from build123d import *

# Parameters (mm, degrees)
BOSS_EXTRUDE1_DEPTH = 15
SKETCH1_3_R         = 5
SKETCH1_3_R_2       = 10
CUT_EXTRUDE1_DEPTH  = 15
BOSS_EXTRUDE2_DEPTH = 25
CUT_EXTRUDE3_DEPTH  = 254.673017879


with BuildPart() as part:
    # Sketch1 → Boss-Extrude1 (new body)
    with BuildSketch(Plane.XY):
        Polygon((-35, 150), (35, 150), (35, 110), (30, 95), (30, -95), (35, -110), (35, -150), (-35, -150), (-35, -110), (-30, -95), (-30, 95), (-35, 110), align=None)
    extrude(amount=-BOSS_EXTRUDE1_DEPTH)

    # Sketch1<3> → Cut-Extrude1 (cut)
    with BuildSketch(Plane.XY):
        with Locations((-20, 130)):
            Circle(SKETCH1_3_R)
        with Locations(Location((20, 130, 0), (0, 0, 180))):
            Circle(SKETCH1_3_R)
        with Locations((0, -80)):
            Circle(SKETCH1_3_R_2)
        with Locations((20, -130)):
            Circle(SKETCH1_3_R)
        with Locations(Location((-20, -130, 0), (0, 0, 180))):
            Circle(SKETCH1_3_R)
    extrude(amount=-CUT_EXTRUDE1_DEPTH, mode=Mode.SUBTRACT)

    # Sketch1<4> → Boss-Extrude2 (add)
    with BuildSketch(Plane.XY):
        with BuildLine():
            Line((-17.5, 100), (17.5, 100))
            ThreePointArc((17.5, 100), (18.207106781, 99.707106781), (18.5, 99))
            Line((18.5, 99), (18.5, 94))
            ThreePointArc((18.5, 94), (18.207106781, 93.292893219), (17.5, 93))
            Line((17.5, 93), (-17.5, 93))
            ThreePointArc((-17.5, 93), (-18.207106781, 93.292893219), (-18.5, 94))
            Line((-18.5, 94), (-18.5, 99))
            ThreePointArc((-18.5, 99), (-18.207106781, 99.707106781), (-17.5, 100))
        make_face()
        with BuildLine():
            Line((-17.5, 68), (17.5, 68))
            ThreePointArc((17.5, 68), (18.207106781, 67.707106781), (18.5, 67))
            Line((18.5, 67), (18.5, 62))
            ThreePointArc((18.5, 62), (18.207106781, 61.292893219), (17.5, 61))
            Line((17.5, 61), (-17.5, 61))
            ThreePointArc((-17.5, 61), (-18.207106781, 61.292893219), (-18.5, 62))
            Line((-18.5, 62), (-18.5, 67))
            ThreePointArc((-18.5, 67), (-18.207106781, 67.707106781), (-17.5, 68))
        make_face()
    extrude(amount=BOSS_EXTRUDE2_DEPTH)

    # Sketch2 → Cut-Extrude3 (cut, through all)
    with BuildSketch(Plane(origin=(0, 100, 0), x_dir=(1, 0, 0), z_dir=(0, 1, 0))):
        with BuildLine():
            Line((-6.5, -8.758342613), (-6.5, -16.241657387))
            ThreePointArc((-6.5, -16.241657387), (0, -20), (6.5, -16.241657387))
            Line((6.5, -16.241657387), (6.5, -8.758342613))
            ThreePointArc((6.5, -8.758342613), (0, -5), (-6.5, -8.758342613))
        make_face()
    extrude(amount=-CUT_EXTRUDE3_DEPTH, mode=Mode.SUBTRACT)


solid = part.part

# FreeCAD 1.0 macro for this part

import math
import FreeCAD as App
import Part
import Sketcher


def add_polygon(sketch, points):
    """Adds a closed chain of lines whose ends are joined by coincident constraints."""
    first, n = sketch.GeometryCount, len(points)
    for a, b in zip(points, points[1:] + points[:1]):
        sketch.addGeometry(Part.LineSegment(App.Vector(*a, 0), App.Vector(*b, 0)), False)
    for i in range(n):
        sketch.addConstraint(Sketcher.Constraint("Coincident", first + i, 2, first + (i + 1) % n, 1))

doc = App.newDocument("Part")
params = doc.addObject("Spreadsheet::Sheet", "Params")
for row, (alias, value) in enumerate([
    ("sketch1_width", "70 mm"),
    ("sketch1_height", "40 mm"),
    ("sketch1_height2", "190 mm"),
    ("pad1_length", "15 mm"),
    ("sketch2_diameter", "10 mm"),
    ("sketch2_diameter2", "20 mm"),
    ("pocket1_length", "15 mm"),
    ("sketch3_radius", "1 mm"),
    ("sketch3_width", "35 mm"),
    ("sketch3_height", "5 mm"),
    ("pad2_length", "25 mm"),
    ("sketch4_radius", "7.5 mm"),
], start=1):
    params.set(f"A{row}", alias)
    params.set(f"B{row}", "=" + value)
    params.setAlias(f"B{row}", alias)

body = doc.addObject("PartDesign::Body", "Body")

sketch1 = body.newObject("Sketcher::SketchObject", "Sketch")
sketch1.AttachmentSupport = (doc.getObject("XY_Plane"), [""])
sketch1.MapMode = "FlatFace"
add_polygon(sketch1, [(35, 150), (-35, 150), (-35, 110), (-30, 95), (-30, -95), (-35, -110), (-35, -150), (35, -150), (35, -110), (30, -95), (30, 95), (35, 110)])
sketch1.addConstraint(Sketcher.Constraint("Horizontal", 0))
sketch1.addConstraint(Sketcher.Constraint("Vertical", 1))
sketch1.addConstraint(Sketcher.Constraint("Vertical", 3))
sketch1.addConstraint(Sketcher.Constraint("Vertical", 5))
sketch1.addConstraint(Sketcher.Constraint("Horizontal", 6))
sketch1.addConstraint(Sketcher.Constraint("Vertical", 7))
sketch1.addConstraint(Sketcher.Constraint("Vertical", 9))
sketch1.addConstraint(Sketcher.Constraint("Vertical", 11))
sketch1.addConstraint(Sketcher.Constraint("Symmetric", 0, 2, 6, 2, -1, 1))
sketch1.addConstraint(Sketcher.Constraint("Symmetric", 2, 2, 8, 2, -1, 1))
sketch1.addConstraint(Sketcher.Constraint("Symmetric", 4, 2, 10, 2, -1, 1))
sketch1.addConstraint(Sketcher.Constraint("Symmetric", 4, 2, 7, 2, -2))
sketch1.addConstraint(Sketcher.Constraint("Parallel", 2, 8))
sketch1.addConstraint(Sketcher.Constraint("Parallel", 4, 10))
sketch1.addConstraint(Sketcher.Constraint("Horizontal", 3, 2, 8, 2))
sketch1.addConstraint(Sketcher.Constraint("DistanceX", 0, 2, 0, 1, 70.0))
sketch1.addConstraint(Sketcher.Constraint("DistanceY", 1, 2, 1, 1, 40.0))
sketch1.addConstraint(Sketcher.Constraint("DistanceY", 3, 2, 3, 1, 190.0))
sketch1.addConstraint(Sketcher.Constraint("DistanceY", -1, 1, 0, 2, 150.0))
sketch1.addConstraint(Sketcher.Constraint("DistanceX", 2, 2, -1, 1, 30.0))
sketch1.setExpression("Constraints[27]", "Params.sketch1_width")
sketch1.setExpression("Constraints[28]", "Params.sketch1_height")
sketch1.setExpression("Constraints[29]", "Params.sketch1_height2")
pad1 = body.newObject("PartDesign::Pad", "Pad")
pad1.Profile = sketch1
pad1.setExpression("Length", "Params.pad1_length")
pad1.Reversed = True

sketch2 = body.newObject("Sketcher::SketchObject", "Sketch001")
sketch2.AttachmentSupport = (doc.getObject("XY_Plane"), [""])
sketch2.MapMode = "FlatFace"
sketch2.addGeometry(Part.Circle(App.Vector(-20, 130, 0), App.Vector(0, 0, 1), 5), False)
sketch2.addGeometry(Part.Circle(App.Vector(20, 130, 0), App.Vector(0, 0, 1), 5), False)
sketch2.addGeometry(Part.Circle(App.Vector(0, -80, 0), App.Vector(0, 0, 1), 10), False)
sketch2.addGeometry(Part.Circle(App.Vector(20, -130, 0), App.Vector(0, 0, 1), 5), False)
sketch2.addGeometry(Part.Circle(App.Vector(-20, -130, 0), App.Vector(0, 0, 1), 5), False)
sketch2.addConstraint(Sketcher.Constraint("Equal", 0, 1))
sketch2.addConstraint(Sketcher.Constraint("Equal", 1, 3))
sketch2.addConstraint(Sketcher.Constraint("Equal", 3, 4))
sketch2.addConstraint(Sketcher.Constraint("Symmetric", 0, 3, 3, 3, -1, 1))
sketch2.addConstraint(Sketcher.Constraint("Symmetric", 1, 3, 4, 3, -1, 1))
sketch2.addConstraint(Sketcher.Constraint("Symmetric", 0, 3, 1, 3, -2))
sketch2.addConstraint(Sketcher.Constraint("PointOnObject", 2, 3, -2))
sketch2.addConstraint(Sketcher.Constraint("Diameter", 0, 10.0))
sketch2.addConstraint(Sketcher.Constraint("Diameter", 2, 20.0))
sketch2.addConstraint(Sketcher.Constraint("DistanceX", 0, 3, -1, 1, 20.0))
sketch2.addConstraint(Sketcher.Constraint("DistanceY", -1, 1, 0, 3, 130.0))
sketch2.addConstraint(Sketcher.Constraint("DistanceY", 2, 3, -1, 1, 80.0))
sketch2.setExpression("Constraints[7]", "Params.sketch2_diameter")
sketch2.setExpression("Constraints[8]", "Params.sketch2_diameter2")
pocket1 = body.newObject("PartDesign::Pocket", "Pocket")
pocket1.Profile = sketch2
pocket1.setExpression("Length", "Params.pocket1_length")

sketch3 = body.newObject("Sketcher::SketchObject", "Sketch002")
sketch3.AttachmentSupport = (doc.getObject("XY_Plane"), [""])
sketch3.MapMode = "FlatFace"
sketch3.addGeometry(Part.LineSegment(App.Vector(17.5, 100, 0), App.Vector(-17.5, 100, 0)), False)
sketch3.addGeometry(Part.ArcOfCircle(Part.Circle(App.Vector(-17.5, 99, 0), App.Vector(0, 0, 1), 1), math.radians(90), math.radians(180)), False)
sketch3.addGeometry(Part.LineSegment(App.Vector(-18.5, 99, 0), App.Vector(-18.5, 94, 0)), False)
sketch3.addGeometry(Part.ArcOfCircle(Part.Circle(App.Vector(-17.5, 94, 0), App.Vector(0, 0, 1), 1), math.radians(-180), math.radians(-90)), False)
sketch3.addGeometry(Part.LineSegment(App.Vector(-17.5, 93, 0), App.Vector(17.5, 93, 0)), False)
sketch3.addGeometry(Part.ArcOfCircle(Part.Circle(App.Vector(17.5, 94, 0), App.Vector(0, 0, 1), 1), math.radians(-90), math.radians(0)), False)
sketch3.addGeometry(Part.LineSegment(App.Vector(18.5, 94, 0), App.Vector(18.5, 99, 0)), False)
sketch3.addGeometry(Part.ArcOfCircle(Part.Circle(App.Vector(17.5, 99, 0), App.Vector(0, 0, 1), 1), math.radians(0), math.radians(90)), False)
sketch3.addGeometry(Part.LineSegment(App.Vector(17.5, 68, 0), App.Vector(-17.5, 68, 0)), False)
sketch3.addGeometry(Part.ArcOfCircle(Part.Circle(App.Vector(-17.5, 67, 0), App.Vector(0, 0, 1), 1), math.radians(90), math.radians(180)), False)
sketch3.addGeometry(Part.LineSegment(App.Vector(-18.5, 67, 0), App.Vector(-18.5, 62, 0)), False)
sketch3.addGeometry(Part.ArcOfCircle(Part.Circle(App.Vector(-17.5, 62, 0), App.Vector(0, 0, 1), 1), math.radians(-180), math.radians(-90)), False)
sketch3.addGeometry(Part.LineSegment(App.Vector(-17.5, 61, 0), App.Vector(17.5, 61, 0)), False)
sketch3.addGeometry(Part.ArcOfCircle(Part.Circle(App.Vector(17.5, 62, 0), App.Vector(0, 0, 1), 1), math.radians(-90), math.radians(0)), False)
sketch3.addGeometry(Part.LineSegment(App.Vector(18.5, 62, 0), App.Vector(18.5, 67, 0)), False)
sketch3.addGeometry(Part.ArcOfCircle(Part.Circle(App.Vector(17.5, 67, 0), App.Vector(0, 0, 1), 1), math.radians(0), math.radians(90)), False)
sketch3.addConstraint(Sketcher.Constraint("Tangent", 0, 2, 1, 1))
sketch3.addConstraint(Sketcher.Constraint("Tangent", 1, 2, 2, 1))
sketch3.addConstraint(Sketcher.Constraint("Tangent", 2, 2, 3, 1))
sketch3.addConstraint(Sketcher.Constraint("Tangent", 3, 2, 4, 1))
sketch3.addConstraint(Sketcher.Constraint("Tangent", 4, 2, 5, 1))
sketch3.addConstraint(Sketcher.Constraint("Tangent", 5, 2, 6, 1))
sketch3.addConstraint(Sketcher.Constraint("Tangent", 6, 2, 7, 1))
sketch3.addConstraint(Sketcher.Constraint("Tangent", 7, 2, 0, 1))
sketch3.addConstraint(Sketcher.Constraint("Tangent", 8, 2, 9, 1))
sketch3.addConstraint(Sketcher.Constraint("Tangent", 9, 2, 10, 1))
sketch3.addConstraint(Sketcher.Constraint("Tangent", 10, 2, 11, 1))
sketch3.addConstraint(Sketcher.Constraint("Tangent", 11, 2, 12, 1))
sketch3.addConstraint(Sketcher.Constraint("Tangent", 12, 2, 13, 1))
sketch3.addConstraint(Sketcher.Constraint("Tangent", 13, 2, 14, 1))
sketch3.addConstraint(Sketcher.Constraint("Tangent", 14, 2, 15, 1))
sketch3.addConstraint(Sketcher.Constraint("Tangent", 15, 2, 8, 1))
sketch3.addConstraint(Sketcher.Constraint("Horizontal", 0))
sketch3.addConstraint(Sketcher.Constraint("Vertical", 2))
sketch3.addConstraint(Sketcher.Constraint("Horizontal", 4))
sketch3.addConstraint(Sketcher.Constraint("Vertical", 6))
sketch3.addConstraint(Sketcher.Constraint("Horizontal", 8))
sketch3.addConstraint(Sketcher.Constraint("Vertical", 10))
sketch3.addConstraint(Sketcher.Constraint("Horizontal", 12))
sketch3.addConstraint(Sketcher.Constraint("Vertical", 14))
sketch3.addConstraint(Sketcher.Constraint("Equal", 1, 3))
sketch3.addConstraint(Sketcher.Constraint("Equal", 3, 5))
sketch3.addConstraint(Sketcher.Constraint("Equal", 5, 7))
sketch3.addConstraint(Sketcher.Constraint("Equal", 7, 9))
sketch3.addConstraint(Sketcher.Constraint("Equal", 9, 11))
sketch3.addConstraint(Sketcher.Constraint("Equal", 11, 13))
sketch3.addConstraint(Sketcher.Constraint("Equal", 13, 15))
sketch3.addConstraint(Sketcher.Constraint("Vertical", 3, 3, 9, 3))
sketch3.addConstraint(Sketcher.Constraint("Vertical", 7, 3, 13, 3))
sketch3.addConstraint(Sketcher.Constraint("Equal", 6, 10))
sketch3.addConstraint(Sketcher.Constraint("Radius", 1, 1.0))
sketch3.addConstraint(Sketcher.Constraint("DistanceX", 0, 2, 0, 1, 35.0))
sketch3.addConstraint(Sketcher.Constraint("DistanceY", 2, 2, 2, 1, 5.0))
sketch3.addConstraint(Sketcher.Constraint("DistanceY", -1, 1, 1, 3, 99.0))
sketch3.addConstraint(Sketcher.Constraint("DistanceY", -1, 1, 9, 3, 67.0))
sketch3.addConstraint(Sketcher.Constraint("DistanceX", 1, 3, -1, 1, 17.5))
sketch3.setExpression("Constraints[34]", "Params.sketch3_radius")
sketch3.setExpression("Constraints[35]", "Params.sketch3_width")
sketch3.setExpression("Constraints[36]", "Params.sketch3_height")
pad2 = body.newObject("PartDesign::Pad", "Pad001")
pad2.Profile = sketch3
pad2.setExpression("Length", "Params.pad2_length")

sketch4 = body.newObject("Sketcher::SketchObject", "Sketch003")
sketch4.AttachmentSupport = (doc.getObject("XZ_Plane"), [""])
sketch4.MapMode = "FlatFace"
sketch4.AttachmentOffset = App.Placement(App.Vector(0, 0, -100), App.Rotation())
sketch4.addGeometry(Part.LineSegment(App.Vector(-6, 9, 0), App.Vector(-6, 16, 0)), False)
sketch4.addGeometry(Part.ArcOfCircle(Part.Circle(App.Vector(0, 12, 0), App.Vector(0, 0, 1), 8), math.radians(30), math.radians(150)), False)
sketch4.addGeometry(Part.LineSegment(App.Vector(6, 16, 0), App.Vector(6, 9, 0)), False)
sketch4.addGeometry(Part.ArcOfCircle(Part.Circle(App.Vector(0, 12, 0), App.Vector(0, 0, 1), 8), math.radians(-150), math.radians(-30)), False)
sketch4.addConstraint(Sketcher.Constraint("Coincident", 0, 2, 1, 2))
sketch4.addConstraint(Sketcher.Constraint("Coincident", 1, 1, 2, 1))
sketch4.addConstraint(Sketcher.Constraint("Coincident", 2, 2, 3, 2))
sketch4.addConstraint(Sketcher.Constraint("Coincident", 3, 1, 0, 1))
sketch4.addConstraint(Sketcher.Constraint("Vertical", 0))
sketch4.addConstraint(Sketcher.Constraint("Vertical", 2))
sketch4.addConstraint(Sketcher.Constraint("Coincident", 3, 3, 1, 3))
sketch4.addConstraint(Sketcher.Constraint("Equal", 1, 3))
sketch4.addConstraint(Sketcher.Constraint("Symmetric", 0, 2, 1, 1, -2))
sketch4.addConstraint(Sketcher.Constraint("Radius", 1, 7.5))
sketch4.addConstraint(Sketcher.Constraint("DistanceX", 0, 2, 1, 1, 13.0))
sketch4.addConstraint(Sketcher.Constraint("DistanceY", -1, 1, 1, 3, 12.5))
sketch4.setExpression("Constraints[9]", "Params.sketch4_radius")
pocket2 = body.newObject("PartDesign::Pocket", "Pocket001")
pocket2.Profile = sketch4
pocket2.Type = "ThroughAll"
pocket2.Reversed = True

doc.recompute()
